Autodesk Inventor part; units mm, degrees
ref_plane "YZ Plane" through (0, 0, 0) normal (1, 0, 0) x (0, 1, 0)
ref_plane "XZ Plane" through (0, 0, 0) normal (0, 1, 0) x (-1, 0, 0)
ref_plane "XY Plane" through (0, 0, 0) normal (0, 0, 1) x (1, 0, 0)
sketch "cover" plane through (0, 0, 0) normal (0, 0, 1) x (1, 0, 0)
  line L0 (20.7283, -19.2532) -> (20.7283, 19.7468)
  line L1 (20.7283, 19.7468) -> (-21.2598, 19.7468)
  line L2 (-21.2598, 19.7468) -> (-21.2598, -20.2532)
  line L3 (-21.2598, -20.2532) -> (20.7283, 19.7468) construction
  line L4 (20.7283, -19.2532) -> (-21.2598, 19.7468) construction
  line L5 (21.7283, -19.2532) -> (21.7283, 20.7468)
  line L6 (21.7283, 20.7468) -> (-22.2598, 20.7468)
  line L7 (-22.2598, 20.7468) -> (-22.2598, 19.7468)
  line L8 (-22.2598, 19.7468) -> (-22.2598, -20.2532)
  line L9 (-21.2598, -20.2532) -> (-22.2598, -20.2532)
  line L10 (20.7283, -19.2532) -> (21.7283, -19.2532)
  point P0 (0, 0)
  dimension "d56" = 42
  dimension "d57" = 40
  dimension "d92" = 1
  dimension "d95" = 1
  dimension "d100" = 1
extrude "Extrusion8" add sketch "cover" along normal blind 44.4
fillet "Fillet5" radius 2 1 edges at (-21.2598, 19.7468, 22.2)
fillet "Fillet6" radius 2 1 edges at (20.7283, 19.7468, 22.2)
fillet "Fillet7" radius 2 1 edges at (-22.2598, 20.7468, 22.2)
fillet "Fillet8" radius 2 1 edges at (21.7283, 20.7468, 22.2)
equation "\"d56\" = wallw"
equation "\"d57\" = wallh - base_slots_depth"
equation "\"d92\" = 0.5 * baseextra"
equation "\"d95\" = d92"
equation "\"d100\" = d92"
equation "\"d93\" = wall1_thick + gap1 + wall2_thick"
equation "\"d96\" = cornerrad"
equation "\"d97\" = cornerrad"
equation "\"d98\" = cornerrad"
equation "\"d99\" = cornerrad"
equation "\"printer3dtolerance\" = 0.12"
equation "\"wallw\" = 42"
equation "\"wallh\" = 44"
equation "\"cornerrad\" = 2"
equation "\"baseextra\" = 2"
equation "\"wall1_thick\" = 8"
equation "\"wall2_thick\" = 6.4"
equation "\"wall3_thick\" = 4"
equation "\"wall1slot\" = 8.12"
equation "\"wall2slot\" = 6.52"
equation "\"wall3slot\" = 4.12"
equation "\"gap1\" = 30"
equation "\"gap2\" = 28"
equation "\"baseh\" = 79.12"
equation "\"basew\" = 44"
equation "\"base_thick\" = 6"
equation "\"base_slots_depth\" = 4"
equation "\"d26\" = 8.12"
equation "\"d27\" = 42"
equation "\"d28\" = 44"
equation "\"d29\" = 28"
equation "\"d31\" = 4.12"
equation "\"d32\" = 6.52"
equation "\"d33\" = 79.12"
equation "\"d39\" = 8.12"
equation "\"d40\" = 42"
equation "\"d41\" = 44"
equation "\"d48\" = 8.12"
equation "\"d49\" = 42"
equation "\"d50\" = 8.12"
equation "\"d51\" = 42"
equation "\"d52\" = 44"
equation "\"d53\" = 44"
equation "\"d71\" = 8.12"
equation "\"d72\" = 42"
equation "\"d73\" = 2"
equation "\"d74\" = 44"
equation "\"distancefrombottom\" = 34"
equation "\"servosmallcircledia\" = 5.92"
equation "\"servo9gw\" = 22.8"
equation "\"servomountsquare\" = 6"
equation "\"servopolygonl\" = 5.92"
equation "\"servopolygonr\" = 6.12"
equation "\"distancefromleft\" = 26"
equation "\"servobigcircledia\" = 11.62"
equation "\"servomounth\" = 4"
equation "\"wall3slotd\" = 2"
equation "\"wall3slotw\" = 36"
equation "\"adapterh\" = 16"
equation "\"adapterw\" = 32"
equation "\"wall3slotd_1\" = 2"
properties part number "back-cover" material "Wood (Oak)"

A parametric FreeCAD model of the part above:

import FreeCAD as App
import Part
import Sketcher
Q = App.Units.Quantity


def edges_at(feature, points):
    """Names of the edges that pass closest to the given points."""
    edges = feature.Shape.Edges
    near = lambda p: min(range(len(edges)), key=lambda i: edges[i].distToShape(Part.Vertex(*p))[0])
    return sorted({f"Edge{near(p) + 1}" for p in points})


def add_polygon(sketch, points):
    """Adds a closed chain of lines whose ends are joined by coincident constraints."""
    first, n = sketch.GeometryCount, len(points)
    for a, b in zip(points, points[1:] + points[:1]):
        sketch.addGeometry(Part.LineSegment(App.Vector(*a, 0), App.Vector(*b, 0)), False)
    for i in range(n):
        sketch.addConstraint(Sketcher.Constraint("Coincident", first + i, 2, first + (i + 1) % n, 1))

doc = App.newDocument("Part")
body = doc.addObject("PartDesign::Body", "Body")

sketch1 = body.newObject("Sketcher::SketchObject", "Sketch")
sketch1.AttachmentSupport = (doc.getObject("XY_Plane"), [""])
sketch1.MapMode = "FlatFace"
add_polygon(sketch1, [(20.7283, 19.7468), (20.7283, -19.2532), (21.7283, -19.2532), (21.7283, 20.7468), (-22.2598, 20.7468), (-22.2598, -20.2532), (-21.2598, -20.2532), (-21.2598, 19.7468)])
sketch1.addConstraint([
    Sketcher.Constraint("Vertical", 0),
    Sketcher.Constraint("Horizontal", 1),
    Sketcher.Constraint("Vertical", 2),
    Sketcher.Constraint("Horizontal", 3),
    Sketcher.Constraint("Vertical", 4),
    Sketcher.Constraint("Horizontal", 5),
    Sketcher.Constraint("Vertical", 6),
    Sketcher.Constraint("Horizontal", 7),
    Sketcher.Constraint("Equal", 1, 5),
    Sketcher.Constraint("Equal", 2, 6),
    Sketcher.Constraint("DistanceX", 1, 1, 1, 2, Q("1 mm")),
    Sketcher.Constraint("DistanceY", 2, 1, 2, 2, Q("40 mm")),
    Sketcher.Constraint("DistanceY", 4, 2, 0, 2, Q("1 mm")),
    Sketcher.Constraint("DistanceX", 3, 2, 3, 1, Q("43.988 mm")),
    Sketcher.Constraint("DistanceX", -1, 1, 0, 2, Q("20.7283 mm")),
    Sketcher.Constraint("DistanceY", 0, 2, -1, 1, Q("19.2532 mm")),
])
pad1 = body.newObject("PartDesign::Pad", "Pad")
pad1.Profile = sketch1
pad1.Length = 44.4
doc.recompute()

fillet = body.newObject("PartDesign::Fillet", "Fillet")
fillet.Base = (pad1, edges_at(pad1, [(-21.26, 19.747, 22.2)]))
fillet.Radius = 2
doc.recompute()

fillet2 = body.newObject("PartDesign::Fillet", "Fillet001")
fillet2.Base = (fillet, edges_at(fillet, [(20.728, 19.747, 22.2)]))
fillet2.Radius = 2
doc.recompute()

fillet3 = body.newObject("PartDesign::Fillet", "Fillet002")
fillet3.Base = (fillet2, edges_at(fillet2, [(-22.26, 20.747, 22.2)]))
fillet3.Radius = 2
doc.recompute()

fillet4 = body.newObject("PartDesign::Fillet", "Fillet003")
fillet4.Base = (fillet3, edges_at(fillet3, [(21.728, 20.747, 22.2)]))
fillet4.Radius = 2

doc.recompute()
